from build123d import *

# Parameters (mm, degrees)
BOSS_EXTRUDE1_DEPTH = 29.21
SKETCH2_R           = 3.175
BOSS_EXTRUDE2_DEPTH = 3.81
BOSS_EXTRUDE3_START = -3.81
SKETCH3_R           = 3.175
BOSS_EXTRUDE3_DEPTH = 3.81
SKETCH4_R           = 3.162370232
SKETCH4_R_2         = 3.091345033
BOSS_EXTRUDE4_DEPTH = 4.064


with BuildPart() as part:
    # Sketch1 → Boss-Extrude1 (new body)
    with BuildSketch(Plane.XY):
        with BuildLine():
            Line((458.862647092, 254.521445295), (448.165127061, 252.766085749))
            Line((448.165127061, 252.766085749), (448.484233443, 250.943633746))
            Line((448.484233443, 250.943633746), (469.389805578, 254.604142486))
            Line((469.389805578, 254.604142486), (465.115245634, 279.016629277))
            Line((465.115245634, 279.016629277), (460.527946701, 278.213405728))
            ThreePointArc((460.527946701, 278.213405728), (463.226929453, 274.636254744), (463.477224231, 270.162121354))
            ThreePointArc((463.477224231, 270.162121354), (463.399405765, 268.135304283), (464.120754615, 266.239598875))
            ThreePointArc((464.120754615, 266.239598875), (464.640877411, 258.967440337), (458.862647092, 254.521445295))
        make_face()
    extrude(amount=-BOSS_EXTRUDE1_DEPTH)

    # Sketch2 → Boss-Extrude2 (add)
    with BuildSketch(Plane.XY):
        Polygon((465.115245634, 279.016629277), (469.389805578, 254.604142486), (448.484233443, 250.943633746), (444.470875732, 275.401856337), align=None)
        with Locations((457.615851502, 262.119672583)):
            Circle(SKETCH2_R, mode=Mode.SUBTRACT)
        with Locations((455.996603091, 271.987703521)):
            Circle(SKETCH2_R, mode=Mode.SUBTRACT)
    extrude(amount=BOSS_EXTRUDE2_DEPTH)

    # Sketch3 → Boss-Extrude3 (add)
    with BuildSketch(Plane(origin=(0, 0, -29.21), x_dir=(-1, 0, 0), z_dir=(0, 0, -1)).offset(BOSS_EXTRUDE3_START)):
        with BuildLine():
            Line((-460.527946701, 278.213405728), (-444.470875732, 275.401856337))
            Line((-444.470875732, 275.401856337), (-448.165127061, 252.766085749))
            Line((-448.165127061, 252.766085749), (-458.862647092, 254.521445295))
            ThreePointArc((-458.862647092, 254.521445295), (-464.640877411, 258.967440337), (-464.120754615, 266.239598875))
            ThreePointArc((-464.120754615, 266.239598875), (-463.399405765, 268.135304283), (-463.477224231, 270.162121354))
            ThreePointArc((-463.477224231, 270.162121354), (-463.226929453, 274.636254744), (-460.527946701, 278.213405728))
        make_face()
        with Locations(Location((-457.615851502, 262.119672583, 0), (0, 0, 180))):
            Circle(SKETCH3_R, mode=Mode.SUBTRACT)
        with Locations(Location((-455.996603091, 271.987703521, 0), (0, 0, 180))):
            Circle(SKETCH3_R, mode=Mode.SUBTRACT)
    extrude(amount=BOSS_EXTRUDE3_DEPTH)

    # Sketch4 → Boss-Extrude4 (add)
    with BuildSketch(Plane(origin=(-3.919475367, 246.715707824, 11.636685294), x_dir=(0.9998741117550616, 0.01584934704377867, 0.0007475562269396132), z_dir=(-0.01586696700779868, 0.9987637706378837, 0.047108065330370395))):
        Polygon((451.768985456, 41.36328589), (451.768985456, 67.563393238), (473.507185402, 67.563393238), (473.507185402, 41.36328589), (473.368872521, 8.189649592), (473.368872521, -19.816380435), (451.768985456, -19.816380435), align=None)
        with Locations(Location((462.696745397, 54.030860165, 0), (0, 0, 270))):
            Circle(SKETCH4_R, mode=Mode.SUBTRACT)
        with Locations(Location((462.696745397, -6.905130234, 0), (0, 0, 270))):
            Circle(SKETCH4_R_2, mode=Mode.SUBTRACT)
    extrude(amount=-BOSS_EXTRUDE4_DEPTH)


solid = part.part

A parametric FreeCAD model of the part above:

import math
import FreeCAD as App
import Part
import Sketcher
from FreeCAD import Vector
Q = App.Units.Quantity

doc = App.newDocument("Part")
body = doc.addObject("PartDesign::Body", "Body")

sketch1 = body.newObject("Sketcher::SketchObject", "Sketch")
sketch1.AttachmentSupport = (doc.getObject("XY_Plane"), [""])
sketch1.MapMode = "FlatFace"
sketch1.addGeometry(Part.LineSegment(Vector(458.9, 254.5, 0), Vector(448.2, 252.8, 0)), False)
sketch1.addGeometry(Part.LineSegment(Vector(448.2, 252.8, 0), Vector(448.5, 250.9, 0)), False)
sketch1.addGeometry(Part.LineSegment(Vector(448.5, 250.9, 0), Vector(469.4, 254.6, 0)), False)
sketch1.addGeometry(Part.LineSegment(Vector(469.4, 254.6, 0), Vector(465.1, 279, 0)), False)
sketch1.addGeometry(Part.LineSegment(Vector(465.1, 279, 0), Vector(460.5, 278.2, 0)), False)
sketch1.addGeometry(Part.ArcOfCircle(Part.Circle(Vector(456, 272, 0), Vector(0, 0, 1), 7.7), math.radians(-14), math.radians(54)), False)
sketch1.addGeometry(Part.ArcOfCircle(Part.Circle(Vector(468.4, 269, 0), Vector(0, 0, 1), 5.1), math.radians(166), math.radians(212)), False)
sketch1.addGeometry(Part.ArcOfCircle(Part.Circle(Vector(457.6, 262.1, 0), Vector(0, 0, 1), 7.7), math.radians(-81), math.radians(32)), False)
sketch1.addConstraint(Sketcher.Constraint("Coincident", 0, 2, 1, 1))
sketch1.addConstraint(Sketcher.Constraint("Coincident", 1, 2, 2, 1))
sketch1.addConstraint(Sketcher.Constraint("Coincident", 2, 2, 3, 1))
sketch1.addConstraint(Sketcher.Constraint("Coincident", 3, 2, 4, 1))
sketch1.addConstraint(Sketcher.Constraint("Coincident", 4, 2, 5, 2))
sketch1.addConstraint(Sketcher.Constraint("Tangent", 5, 1, 6, 1))
sketch1.addConstraint(Sketcher.Constraint("Tangent", 6, 2, 7, 2))
sketch1.addConstraint(Sketcher.Constraint("Tangent", 7, 1, 0, 1))
sketch1.addConstraint(Sketcher.Constraint("Perpendicular", 1, 2))
sketch1.addConstraint(Sketcher.Constraint("Perpendicular", 2, 3))
sketch1.addConstraint(Sketcher.Constraint("Perpendicular", 3, 4))
sketch1.addConstraint(Sketcher.Constraint("Radius", 6, Q("0.2 in")))
sketch1.addConstraint(Sketcher.Constraint("Radius", 5, Q("7.700159 mm")))
sketch1.addConstraint(Sketcher.Constraint("Radius", 7, Q("7.699841 mm")))
sketch1.addConstraint(Sketcher.Constraint("DistanceY", -1, 1, 6, 2, Q("266.239599 mm")))
sketch1.addConstraint(Sketcher.Constraint("DistanceX", 4, 2, 3, 2, Q("4.587299 mm")))
sketch1.addConstraint(Sketcher.Constraint("Distance", 1, Q("1.850178 mm")))
sketch1.addConstraint(Sketcher.Constraint("Distance", 4, Q("4.657089 mm")))
sketch1.addConstraint(Sketcher.Constraint("DistanceX", -1, 1, 6, 3, Q("468.412389 mm")))
sketch1.addConstraint(Sketcher.Constraint("DistanceX", -1, 1, 7, 3, Q("457.615852 mm")))
sketch1.addConstraint(Sketcher.Constraint("DistanceY", -1, 1, 3, 2, Q("279.016629 mm")))
sketch1.addConstraint(Sketcher.Constraint("DistanceY", -1, 1, 5, 1, Q("270.162121 mm")))
sketch1.addConstraint(Sketcher.Constraint("DistanceY", 0, 2, 6, 3, Q("16.19165 mm")))
sketch1.addConstraint(Sketcher.Constraint("DistanceX", 1, 2, 7, 3, Q("9.131618 mm")))
pad1 = body.newObject("PartDesign::Pad", "Pad")
pad1.Profile = sketch1
pad1.Length = Q("1.15 in")
pad1.Reversed = True

sketch2 = body.newObject("Sketcher::SketchObject", "Sketch001")
sketch2.AttachmentSupport = (doc.getObject("XY_Plane"), [""])
sketch2.MapMode = "FlatFace"
sketch2.addGeometry(Part.LineSegment(Vector(469.4, 254.6, 0), Vector(465.1, 279, 0)), False)
sketch2.addGeometry(Part.LineSegment(Vector(465.1, 279, 0), Vector(444.5, 275.4, 0)), False)
sketch2.addGeometry(Part.LineSegment(Vector(444.5, 275.4, 0), Vector(448.5, 250.9, 0)), False)
sketch2.addGeometry(Part.LineSegment(Vector(448.5, 250.9, 0), Vector(469.4, 254.6, 0)), False)
sketch2.addGeometry(Part.Circle(Vector(457.6, 262.1, 0), Vector(0, 0, 1), 3.2), False)
sketch2.addGeometry(Part.Circle(Vector(456, 272, 0), Vector(0, 0, 1), 3.2), False)
sketch2.addConstraint(Sketcher.Constraint("Coincident", 0, 2, 1, 1))
sketch2.addConstraint(Sketcher.Constraint("Coincident", 1, 2, 2, 1))
sketch2.addConstraint(Sketcher.Constraint("Coincident", 2, 2, 3, 1))
sketch2.addConstraint(Sketcher.Constraint("Coincident", 3, 2, 0, 1))
sketch2.addConstraint(Sketcher.Constraint("Equal", 4, 5))
sketch2.addConstraint(Sketcher.Constraint("Perpendicular", 0, 1))
sketch2.addConstraint(Sketcher.Constraint("Parallel", 1, 3))
sketch2.addConstraint(Sketcher.Constraint("Diameter", 4, Q("0.25 in")))
sketch2.addConstraint(Sketcher.Constraint("Distance", 1, Q("20.958449 mm")))
sketch2.addConstraint(Sketcher.Constraint("DistanceX", -1, 1, 4, 3, Q("457.615852 mm")))
sketch2.addConstraint(Sketcher.Constraint("DistanceY", -1, 1, 0, 2, Q("279.016629 mm")))
sketch2.addConstraint(Sketcher.Constraint("DistanceX", 5, 3, 4, 3, Q("1.619248 mm")))
sketch2.addConstraint(Sketcher.Constraint("DistanceY", 4, 3, 5, 3, Q("9.868031 mm")))
sketch2.addConstraint(Sketcher.Constraint("DistanceX", 1, 2, 0, 2, Q("20.64437 mm")))
sketch2.addConstraint(Sketcher.Constraint("DistanceX", 2, 2, 4, 3, Q("9.131618 mm")))
sketch2.addConstraint(Sketcher.Constraint("DistanceY", 2, 2, 4, 3, Q("11.176039 mm")))
sketch2.addConstraint(Sketcher.Constraint("DistanceY", 3, 2, 4, 3, Q("7.51553 mm")))
sketch2.addConstraint(Sketcher.Constraint("DistanceX", 0, 2, 3, 2, Q("4.27456 mm")))
pad2 = body.newObject("PartDesign::Pad", "Pad001")
pad2.Profile = sketch2
pad2.Length = Q("0.15 in")

sketch3 = body.newObject("Sketcher::SketchObject", "Sketch002")
sketch3.AttachmentSupport = (doc.getObject("XY_Plane"), [""])
sketch3.MapMode = "FlatFace"
sketch3.AttachmentOffset = App.Placement(Vector(0, 0, -1 * 25.4), App.Rotation())
sketch3.addGeometry(Part.LineSegment(Vector(444.5, 275.4, 0), Vector(460.5, 278.2, 0)), False)
sketch3.addGeometry(Part.ArcOfCircle(Part.Circle(Vector(456, 272, 0), Vector(0, 0, 1), 7.7), math.radians(-14), math.radians(54)), False)
sketch3.addGeometry(Part.ArcOfCircle(Part.Circle(Vector(468.4, 269, 0), Vector(0, 0, 1), 5.1), math.radians(166), math.radians(212)), False)
sketch3.addGeometry(Part.ArcOfCircle(Part.Circle(Vector(457.6, 262.1, 0), Vector(0, 0, 1), 7.7), math.radians(-81), math.radians(32)), False)
sketch3.addGeometry(Part.LineSegment(Vector(458.9, 254.5, 0), Vector(448.2, 252.8, 0)), False)
sketch3.addGeometry(Part.LineSegment(Vector(448.2, 252.8, 0), Vector(444.5, 275.4, 0)), False)
sketch3.addGeometry(Part.Circle(Vector(457.6, 262.1, 0), Vector(0, 0, 1), 3.2), False)
sketch3.addGeometry(Part.Circle(Vector(456, 272, 0), Vector(0, 0, 1), 3.2), False)
sketch3.addConstraint(Sketcher.Constraint("Coincident", 0, 2, 1, 2))
sketch3.addConstraint(Sketcher.Constraint("Tangent", 1, 1, 2, 1))
sketch3.addConstraint(Sketcher.Constraint("Tangent", 2, 2, 3, 2))
sketch3.addConstraint(Sketcher.Constraint("Tangent", 3, 1, 4, 1))
sketch3.addConstraint(Sketcher.Constraint("Coincident", 4, 2, 5, 1))
sketch3.addConstraint(Sketcher.Constraint("Coincident", 5, 2, 0, 1))
sketch3.addConstraint(Sketcher.Constraint("Coincident", 6, 3, 3, 3))
sketch3.addConstraint(Sketcher.Constraint("Coincident", 7, 3, 1, 3))
sketch3.addConstraint(Sketcher.Constraint("Equal", 6, 7))
sketch3.addConstraint(Sketcher.Constraint("Radius", 2, Q("0.2 in")))
sketch3.addConstraint(Sketcher.Constraint("Diameter", 6, Q("0.25 in")))
sketch3.addConstraint(Sketcher.Constraint("Radius", 1, Q("7.700159 mm")))
sketch3.addConstraint(Sketcher.Constraint("Radius", 3, Q("7.699841 mm")))
sketch3.addConstraint(Sketcher.Constraint("DistanceY", -1, 1, 2, 2, Q("266.239599 mm")))
sketch3.addConstraint(Sketcher.Constraint("Distance", 0, Q("16.30136 mm")))
sketch3.addConstraint(Sketcher.Constraint("Distance", 5, Q("22.935248 mm")))
sketch3.addConstraint(Sketcher.Constraint("DistanceX", -1, 1, 2, 3, Q("468.412389 mm")))
sketch3.addConstraint(Sketcher.Constraint("DistanceX", -1, 1, 3, 3, Q("457.615852 mm")))
sketch3.addConstraint(Sketcher.Constraint("DistanceY", -1, 1, 1, 1, Q("270.162121 mm")))
sketch3.addConstraint(Sketcher.Constraint("DistanceY", 2, 3, 0, 2, Q("9.25567 mm")))
sketch3.addConstraint(Sketcher.Constraint("DistanceY", 3, 1, 2, 3, Q("14.436291 mm")))
sketch3.addConstraint(Sketcher.Constraint("DistanceX", 4, 2, 3, 1, Q("10.69752 mm")))
pad3 = body.newObject("PartDesign::Pad", "Pad002")
pad3.Profile = sketch3
pad3.Length = Q("0.15 in")
pad3.Reversed = True

sketch4 = body.newObject("Sketcher::SketchObject", "Sketch003")
sketch4.Placement = App.Placement(Vector(-3.919475, 246.715708, 11.636685), App.Rotation(Vector(0.999874112, 0.015849347, 0.000747556), Vector(0, 0.047113996, -0.99888952), Vector(-0.015866967, 0.998763771, 0.047108065), "ZXY"))
sketch4.addGeometry(Part.LineSegment(Vector(451.8, 67.6, 0), Vector(451.8, -19.8, 0)), False)
sketch4.addGeometry(Part.LineSegment(Vector(451.8, -19.8, 0), Vector(473.4, -19.8, 0)), False)
sketch4.addGeometry(Part.LineSegment(Vector(473.4, -19.8, 0), Vector(473.4, 8.2, 0)), False)
sketch4.addGeometry(Part.LineSegment(Vector(473.4, 8.2, 0), Vector(473.5, 41.4, 0)), False)
sketch4.addGeometry(Part.LineSegment(Vector(473.5, 41.4, 0), Vector(473.5, 67.6, 0)), False)
sketch4.addGeometry(Part.LineSegment(Vector(473.5, 67.6, 0), Vector(451.8, 67.6, 0)), False)
sketch4.addGeometry(Part.Circle(Vector(462.7, -6.9, 0), Vector(0, 0, 1), 3.1), False)
sketch4.addGeometry(Part.Circle(Vector(462.7, 54, 0), Vector(0, 0, 1), 3.2), False)
sketch4.addConstraint(Sketcher.Constraint("Coincident", 0, 2, 1, 1))
sketch4.addConstraint(Sketcher.Constraint("Coincident", 1, 2, 2, 1))
sketch4.addConstraint(Sketcher.Constraint("Coincident", 2, 2, 3, 1))
sketch4.addConstraint(Sketcher.Constraint("Coincident", 3, 2, 4, 1))
sketch4.addConstraint(Sketcher.Constraint("Coincident", 4, 2, 5, 1))
sketch4.addConstraint(Sketcher.Constraint("Coincident", 5, 2, 0, 1))
sketch4.addConstraint(Sketcher.Constraint("Vertical", 0))
sketch4.addConstraint(Sketcher.Constraint("Horizontal", 1))
sketch4.addConstraint(Sketcher.Constraint("Vertical", 2))
sketch4.addConstraint(Sketcher.Constraint("Vertical", 4))
sketch4.addConstraint(Sketcher.Constraint("Horizontal", 5))
sketch4.addConstraint(Sketcher.Constraint("Vertical", 6, 3, 7, 3))
sketch4.addConstraint(Sketcher.Constraint("Diameter", 6, Q("6.18269 mm")))
sketch4.addConstraint(Sketcher.Constraint("Diameter", 7, Q("6.32474 mm")))
sketch4.addConstraint(Sketcher.Constraint("DistanceX", 5, 2, 5, 1, Q("21.7382 mm")))
sketch4.addConstraint(Sketcher.Constraint("DistanceY", 2, 1, 2, 2, Q("28.00603 mm")))
sketch4.addConstraint(Sketcher.Constraint("DistanceX", 1, 1, 1, 2, Q("21.599887 mm")))
sketch4.addConstraint(Sketcher.Constraint("DistanceY", 0, 2, 0, 1, Q("87.379774 mm")))
sketch4.addConstraint(Sketcher.Constraint("DistanceY", 4, 1, 4, 2, Q("26.200107 mm")))
sketch4.addConstraint(Sketcher.Constraint("DistanceY", 6, 3, -1, 1, Q("6.90513 mm")))
sketch4.addConstraint(Sketcher.Constraint("DistanceY", -1, 1, 7, 3, Q("54.03086 mm")))
sketch4.addConstraint(Sketcher.Constraint("DistanceY", 0, 2, -1, 1, Q("19.81638 mm")))
sketch4.addConstraint(Sketcher.Constraint("DistanceX", 0, 2, 6, 3, Q("10.92776 mm")))
sketch4.addConstraint(Sketcher.Constraint("DistanceX", -1, 1, 6, 3, Q("462.696746 mm")))
pad4 = body.newObject("PartDesign::Pad", "Pad003")
pad4.Profile = sketch4
pad4.Length = Q("0.16 in")
pad4.Reversed = True

doc.recompute()
